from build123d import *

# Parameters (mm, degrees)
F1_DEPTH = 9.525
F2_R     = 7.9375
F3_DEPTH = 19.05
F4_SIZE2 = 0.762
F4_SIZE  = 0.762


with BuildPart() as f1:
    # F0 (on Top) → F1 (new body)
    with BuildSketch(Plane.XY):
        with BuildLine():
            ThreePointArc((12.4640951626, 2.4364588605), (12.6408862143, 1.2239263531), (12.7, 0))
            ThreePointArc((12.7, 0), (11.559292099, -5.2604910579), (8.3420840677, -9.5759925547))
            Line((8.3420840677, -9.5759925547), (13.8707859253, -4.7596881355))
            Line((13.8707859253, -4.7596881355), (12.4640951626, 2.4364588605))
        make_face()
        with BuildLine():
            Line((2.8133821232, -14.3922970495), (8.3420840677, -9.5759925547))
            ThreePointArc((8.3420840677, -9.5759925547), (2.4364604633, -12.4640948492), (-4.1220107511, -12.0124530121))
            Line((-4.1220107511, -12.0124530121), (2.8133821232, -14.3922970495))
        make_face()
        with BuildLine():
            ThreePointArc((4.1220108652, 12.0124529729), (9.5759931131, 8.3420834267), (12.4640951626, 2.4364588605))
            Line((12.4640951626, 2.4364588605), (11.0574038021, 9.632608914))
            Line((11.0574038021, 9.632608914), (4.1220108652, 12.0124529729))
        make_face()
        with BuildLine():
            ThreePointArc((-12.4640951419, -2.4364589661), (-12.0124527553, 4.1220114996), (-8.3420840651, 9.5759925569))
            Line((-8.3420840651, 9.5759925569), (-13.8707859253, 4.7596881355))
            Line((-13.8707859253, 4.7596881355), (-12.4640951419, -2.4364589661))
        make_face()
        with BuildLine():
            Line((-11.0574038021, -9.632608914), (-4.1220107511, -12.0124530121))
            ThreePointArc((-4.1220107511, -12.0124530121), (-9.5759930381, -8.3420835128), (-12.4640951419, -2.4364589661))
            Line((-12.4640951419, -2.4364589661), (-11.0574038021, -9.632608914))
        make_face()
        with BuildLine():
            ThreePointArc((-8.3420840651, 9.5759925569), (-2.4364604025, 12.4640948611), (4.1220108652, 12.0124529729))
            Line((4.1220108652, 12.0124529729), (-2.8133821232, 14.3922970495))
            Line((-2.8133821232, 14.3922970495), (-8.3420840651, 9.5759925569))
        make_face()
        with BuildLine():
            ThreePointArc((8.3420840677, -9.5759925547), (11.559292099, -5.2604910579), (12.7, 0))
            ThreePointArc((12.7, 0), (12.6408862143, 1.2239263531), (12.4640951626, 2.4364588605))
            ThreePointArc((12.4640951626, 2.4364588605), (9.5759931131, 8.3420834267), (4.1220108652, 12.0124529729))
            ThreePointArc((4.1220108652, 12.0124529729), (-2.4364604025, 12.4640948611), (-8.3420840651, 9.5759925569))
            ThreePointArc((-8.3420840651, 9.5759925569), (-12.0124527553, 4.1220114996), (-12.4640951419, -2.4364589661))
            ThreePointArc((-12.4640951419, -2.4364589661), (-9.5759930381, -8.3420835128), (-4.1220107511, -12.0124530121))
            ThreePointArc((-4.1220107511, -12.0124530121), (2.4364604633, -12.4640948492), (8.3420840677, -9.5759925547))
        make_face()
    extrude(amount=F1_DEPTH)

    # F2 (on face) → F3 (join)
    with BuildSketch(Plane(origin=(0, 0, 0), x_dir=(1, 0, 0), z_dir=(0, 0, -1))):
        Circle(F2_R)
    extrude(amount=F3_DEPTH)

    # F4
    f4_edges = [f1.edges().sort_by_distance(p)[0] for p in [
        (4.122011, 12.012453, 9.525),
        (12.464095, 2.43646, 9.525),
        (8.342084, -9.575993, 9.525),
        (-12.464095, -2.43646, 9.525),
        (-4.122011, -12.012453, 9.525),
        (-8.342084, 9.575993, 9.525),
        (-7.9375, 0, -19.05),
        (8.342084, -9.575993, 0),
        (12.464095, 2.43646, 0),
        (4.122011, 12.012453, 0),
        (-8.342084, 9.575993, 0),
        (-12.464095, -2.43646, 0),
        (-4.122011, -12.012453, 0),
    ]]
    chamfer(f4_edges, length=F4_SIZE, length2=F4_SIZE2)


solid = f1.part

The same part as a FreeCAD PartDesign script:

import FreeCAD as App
import Part
import Sketcher
Q = App.Units.Quantity


def edges_at(feature, points):
    """Names of the edges that pass closest to the given points."""
    edges = feature.Shape.Edges
    near = lambda p: min(range(len(edges)), key=lambda i: edges[i].distToShape(Part.Vertex(*p))[0])
    return sorted({f"Edge{near(p) + 1}" for p in points})

doc = App.newDocument("Part")
body = doc.addObject("PartDesign::Body", "Body")

# Sketch on XY plane
sketch1 = body.newObject("Sketcher::SketchObject", "Sketch")
sketch1.AttachmentSupport = (doc.getObject("XY_Plane"), [""])
sketch1.MapMode = "FlatFace"
sketch1.addGeometry(Part.LineSegment(App.Vector(8, -10, 0), App.Vector(14, -5, 0)), False)
sketch1.addGeometry(Part.LineSegment(App.Vector(14, -5, 0), App.Vector(12, 2, 0)), False)
sketch1.addGeometry(Part.LineSegment(App.Vector(12, 2, 0), App.Vector(11, 10, 0)), False)
sketch1.addGeometry(Part.LineSegment(App.Vector(11, 10, 0), App.Vector(4, 12, 0)), False)
sketch1.addGeometry(Part.LineSegment(App.Vector(4, 12, 0), App.Vector(-3, 14, 0)), False)
sketch1.addGeometry(Part.LineSegment(App.Vector(-3, 14, 0), App.Vector(-8, 10, 0)), False)
sketch1.addGeometry(Part.LineSegment(App.Vector(-8, 10, 0), App.Vector(-14, 5, 0)), False)
sketch1.addGeometry(Part.LineSegment(App.Vector(-14, 5, 0), App.Vector(-12, -2, 0)), False)
sketch1.addGeometry(Part.LineSegment(App.Vector(-12, -2, 0), App.Vector(-11, -10, 0)), False)
sketch1.addGeometry(Part.LineSegment(App.Vector(-11, -10, 0), App.Vector(-4, -12, 0)), False)
sketch1.addGeometry(Part.LineSegment(App.Vector(-4, -12, 0), App.Vector(3, -14, 0)), False)
sketch1.addGeometry(Part.LineSegment(App.Vector(3, -14, 0), App.Vector(8, -10, 0)), False)
sketch1.addConstraint(Sketcher.Constraint("Coincident", 0, 2, 1, 1))
sketch1.addConstraint(Sketcher.Constraint("Coincident", 1, 2, 2, 1))
sketch1.addConstraint(Sketcher.Constraint("Coincident", 2, 2, 3, 1))
sketch1.addConstraint(Sketcher.Constraint("Coincident", 3, 2, 4, 1))
sketch1.addConstraint(Sketcher.Constraint("Coincident", 4, 2, 5, 1))
sketch1.addConstraint(Sketcher.Constraint("Coincident", 5, 2, 6, 1))
sketch1.addConstraint(Sketcher.Constraint("Coincident", 6, 2, 7, 1))
sketch1.addConstraint(Sketcher.Constraint("Coincident", 7, 2, 8, 1))
sketch1.addConstraint(Sketcher.Constraint("Coincident", 8, 2, 9, 1))
sketch1.addConstraint(Sketcher.Constraint("Coincident", 9, 2, 10, 1))
sketch1.addConstraint(Sketcher.Constraint("Coincident", 10, 2, 11, 1))
sketch1.addConstraint(Sketcher.Constraint("Coincident", 11, 2, 0, 1))
sketch1.addConstraint(Sketcher.Constraint("Symmetric", 0, 2, 6, 2, -1, 1))
sketch1.addConstraint(Sketcher.Constraint("Symmetric", 1, 2, 7, 2, -1, 1))
sketch1.addConstraint(Sketcher.Constraint("Symmetric", 2, 2, 8, 2, -1, 1))
sketch1.addConstraint(Sketcher.Constraint("Symmetric", 3, 2, 9, 2, -1, 1))
sketch1.addConstraint(Sketcher.Constraint("Symmetric", 4, 2, 10, 2, -1, 1))
sketch1.addConstraint(Sketcher.Constraint("Symmetric", 5, 2, 11, 2, -1, 1))
sketch1.addConstraint(Sketcher.Constraint("Parallel", 1, 2))
sketch1.addConstraint(Sketcher.Constraint("Parallel", 3, 4))
sketch1.addConstraint(Sketcher.Constraint("Parallel", 0, 5))
sketch1.addConstraint(Sketcher.Constraint("Equal", 0, 1))
sketch1.addConstraint(Sketcher.Constraint("Equal", 0, 2))
sketch1.addConstraint(Sketcher.Constraint("Equal", 2, 3))
sketch1.addConstraint(Sketcher.Constraint("Equal", 3, 4))
sketch1.addConstraint(Sketcher.Constraint("Equal", 4, 5))
sketch1.addConstraint(Sketcher.Constraint("DistanceX", 5, 2, 4, 2, 5.528702))
sketch1.addConstraint(Sketcher.Constraint("DistanceY", 8, 2, 5, 2, 19.208601))
sketch1.addConstraint(Sketcher.Constraint("Distance", 0, 7.332348))
sketch1.addConstraint(Sketcher.Constraint("DistanceY", 0, 2, -1, 1, 4.759688))
pad1 = body.newObject("PartDesign::Pad", "Pad")
pad1.Profile = sketch1
pad1.Length = Q("0.375 in")

# Sketch on XY plane
sketch2 = body.newObject("Sketcher::SketchObject", "Sketch001")
sketch2.AttachmentSupport = (doc.getObject("XY_Plane"), [""])
sketch2.MapMode = "FlatFace"
sketch2.addGeometry(Part.Circle(App.Vector(0, 0, 0), App.Vector(0, 0, 1), 8), False)
sketch2.addConstraint(Sketcher.Constraint("Coincident", 0, 3, -1, 1))
sketch2.addConstraint(Sketcher.Constraint("Diameter", 0, Q("0.625 in")))
pad2 = body.newObject("PartDesign::Pad", "Pad001")
pad2.Profile = sketch2
pad2.Length = Q("0.75 in")
pad2.Reversed = True
doc.recompute()

chamfer = body.newObject("PartDesign::Chamfer", "Chamfer")
chamfer.Base = (pad2, edges_at(pad2, [
    (7.59, 10.823, 9.525),
    (11.761, 6.035, 9.525),
    (5.578, -11.984, 9.525),
    (-11.761, -6.035, 9.525),
    (-7.59, -10.823, 9.525),
    (-5.578, 11.984, 9.525),
    (-7.938, 0, -19.05),
    (5.578, -11.984, 0),
    (11.761, 6.035, 0),
    (7.59, 10.823, 0),
    (-5.578, 11.984, 0),
    (-11.761, -6.035, 0),
    (-7.59, -10.823, 0),
]))
chamfer.ChamferType = "Two distances"
chamfer.Size = Q("0.03 in")
chamfer.Size2 = Q("0.03 in")

doc.recompute()
